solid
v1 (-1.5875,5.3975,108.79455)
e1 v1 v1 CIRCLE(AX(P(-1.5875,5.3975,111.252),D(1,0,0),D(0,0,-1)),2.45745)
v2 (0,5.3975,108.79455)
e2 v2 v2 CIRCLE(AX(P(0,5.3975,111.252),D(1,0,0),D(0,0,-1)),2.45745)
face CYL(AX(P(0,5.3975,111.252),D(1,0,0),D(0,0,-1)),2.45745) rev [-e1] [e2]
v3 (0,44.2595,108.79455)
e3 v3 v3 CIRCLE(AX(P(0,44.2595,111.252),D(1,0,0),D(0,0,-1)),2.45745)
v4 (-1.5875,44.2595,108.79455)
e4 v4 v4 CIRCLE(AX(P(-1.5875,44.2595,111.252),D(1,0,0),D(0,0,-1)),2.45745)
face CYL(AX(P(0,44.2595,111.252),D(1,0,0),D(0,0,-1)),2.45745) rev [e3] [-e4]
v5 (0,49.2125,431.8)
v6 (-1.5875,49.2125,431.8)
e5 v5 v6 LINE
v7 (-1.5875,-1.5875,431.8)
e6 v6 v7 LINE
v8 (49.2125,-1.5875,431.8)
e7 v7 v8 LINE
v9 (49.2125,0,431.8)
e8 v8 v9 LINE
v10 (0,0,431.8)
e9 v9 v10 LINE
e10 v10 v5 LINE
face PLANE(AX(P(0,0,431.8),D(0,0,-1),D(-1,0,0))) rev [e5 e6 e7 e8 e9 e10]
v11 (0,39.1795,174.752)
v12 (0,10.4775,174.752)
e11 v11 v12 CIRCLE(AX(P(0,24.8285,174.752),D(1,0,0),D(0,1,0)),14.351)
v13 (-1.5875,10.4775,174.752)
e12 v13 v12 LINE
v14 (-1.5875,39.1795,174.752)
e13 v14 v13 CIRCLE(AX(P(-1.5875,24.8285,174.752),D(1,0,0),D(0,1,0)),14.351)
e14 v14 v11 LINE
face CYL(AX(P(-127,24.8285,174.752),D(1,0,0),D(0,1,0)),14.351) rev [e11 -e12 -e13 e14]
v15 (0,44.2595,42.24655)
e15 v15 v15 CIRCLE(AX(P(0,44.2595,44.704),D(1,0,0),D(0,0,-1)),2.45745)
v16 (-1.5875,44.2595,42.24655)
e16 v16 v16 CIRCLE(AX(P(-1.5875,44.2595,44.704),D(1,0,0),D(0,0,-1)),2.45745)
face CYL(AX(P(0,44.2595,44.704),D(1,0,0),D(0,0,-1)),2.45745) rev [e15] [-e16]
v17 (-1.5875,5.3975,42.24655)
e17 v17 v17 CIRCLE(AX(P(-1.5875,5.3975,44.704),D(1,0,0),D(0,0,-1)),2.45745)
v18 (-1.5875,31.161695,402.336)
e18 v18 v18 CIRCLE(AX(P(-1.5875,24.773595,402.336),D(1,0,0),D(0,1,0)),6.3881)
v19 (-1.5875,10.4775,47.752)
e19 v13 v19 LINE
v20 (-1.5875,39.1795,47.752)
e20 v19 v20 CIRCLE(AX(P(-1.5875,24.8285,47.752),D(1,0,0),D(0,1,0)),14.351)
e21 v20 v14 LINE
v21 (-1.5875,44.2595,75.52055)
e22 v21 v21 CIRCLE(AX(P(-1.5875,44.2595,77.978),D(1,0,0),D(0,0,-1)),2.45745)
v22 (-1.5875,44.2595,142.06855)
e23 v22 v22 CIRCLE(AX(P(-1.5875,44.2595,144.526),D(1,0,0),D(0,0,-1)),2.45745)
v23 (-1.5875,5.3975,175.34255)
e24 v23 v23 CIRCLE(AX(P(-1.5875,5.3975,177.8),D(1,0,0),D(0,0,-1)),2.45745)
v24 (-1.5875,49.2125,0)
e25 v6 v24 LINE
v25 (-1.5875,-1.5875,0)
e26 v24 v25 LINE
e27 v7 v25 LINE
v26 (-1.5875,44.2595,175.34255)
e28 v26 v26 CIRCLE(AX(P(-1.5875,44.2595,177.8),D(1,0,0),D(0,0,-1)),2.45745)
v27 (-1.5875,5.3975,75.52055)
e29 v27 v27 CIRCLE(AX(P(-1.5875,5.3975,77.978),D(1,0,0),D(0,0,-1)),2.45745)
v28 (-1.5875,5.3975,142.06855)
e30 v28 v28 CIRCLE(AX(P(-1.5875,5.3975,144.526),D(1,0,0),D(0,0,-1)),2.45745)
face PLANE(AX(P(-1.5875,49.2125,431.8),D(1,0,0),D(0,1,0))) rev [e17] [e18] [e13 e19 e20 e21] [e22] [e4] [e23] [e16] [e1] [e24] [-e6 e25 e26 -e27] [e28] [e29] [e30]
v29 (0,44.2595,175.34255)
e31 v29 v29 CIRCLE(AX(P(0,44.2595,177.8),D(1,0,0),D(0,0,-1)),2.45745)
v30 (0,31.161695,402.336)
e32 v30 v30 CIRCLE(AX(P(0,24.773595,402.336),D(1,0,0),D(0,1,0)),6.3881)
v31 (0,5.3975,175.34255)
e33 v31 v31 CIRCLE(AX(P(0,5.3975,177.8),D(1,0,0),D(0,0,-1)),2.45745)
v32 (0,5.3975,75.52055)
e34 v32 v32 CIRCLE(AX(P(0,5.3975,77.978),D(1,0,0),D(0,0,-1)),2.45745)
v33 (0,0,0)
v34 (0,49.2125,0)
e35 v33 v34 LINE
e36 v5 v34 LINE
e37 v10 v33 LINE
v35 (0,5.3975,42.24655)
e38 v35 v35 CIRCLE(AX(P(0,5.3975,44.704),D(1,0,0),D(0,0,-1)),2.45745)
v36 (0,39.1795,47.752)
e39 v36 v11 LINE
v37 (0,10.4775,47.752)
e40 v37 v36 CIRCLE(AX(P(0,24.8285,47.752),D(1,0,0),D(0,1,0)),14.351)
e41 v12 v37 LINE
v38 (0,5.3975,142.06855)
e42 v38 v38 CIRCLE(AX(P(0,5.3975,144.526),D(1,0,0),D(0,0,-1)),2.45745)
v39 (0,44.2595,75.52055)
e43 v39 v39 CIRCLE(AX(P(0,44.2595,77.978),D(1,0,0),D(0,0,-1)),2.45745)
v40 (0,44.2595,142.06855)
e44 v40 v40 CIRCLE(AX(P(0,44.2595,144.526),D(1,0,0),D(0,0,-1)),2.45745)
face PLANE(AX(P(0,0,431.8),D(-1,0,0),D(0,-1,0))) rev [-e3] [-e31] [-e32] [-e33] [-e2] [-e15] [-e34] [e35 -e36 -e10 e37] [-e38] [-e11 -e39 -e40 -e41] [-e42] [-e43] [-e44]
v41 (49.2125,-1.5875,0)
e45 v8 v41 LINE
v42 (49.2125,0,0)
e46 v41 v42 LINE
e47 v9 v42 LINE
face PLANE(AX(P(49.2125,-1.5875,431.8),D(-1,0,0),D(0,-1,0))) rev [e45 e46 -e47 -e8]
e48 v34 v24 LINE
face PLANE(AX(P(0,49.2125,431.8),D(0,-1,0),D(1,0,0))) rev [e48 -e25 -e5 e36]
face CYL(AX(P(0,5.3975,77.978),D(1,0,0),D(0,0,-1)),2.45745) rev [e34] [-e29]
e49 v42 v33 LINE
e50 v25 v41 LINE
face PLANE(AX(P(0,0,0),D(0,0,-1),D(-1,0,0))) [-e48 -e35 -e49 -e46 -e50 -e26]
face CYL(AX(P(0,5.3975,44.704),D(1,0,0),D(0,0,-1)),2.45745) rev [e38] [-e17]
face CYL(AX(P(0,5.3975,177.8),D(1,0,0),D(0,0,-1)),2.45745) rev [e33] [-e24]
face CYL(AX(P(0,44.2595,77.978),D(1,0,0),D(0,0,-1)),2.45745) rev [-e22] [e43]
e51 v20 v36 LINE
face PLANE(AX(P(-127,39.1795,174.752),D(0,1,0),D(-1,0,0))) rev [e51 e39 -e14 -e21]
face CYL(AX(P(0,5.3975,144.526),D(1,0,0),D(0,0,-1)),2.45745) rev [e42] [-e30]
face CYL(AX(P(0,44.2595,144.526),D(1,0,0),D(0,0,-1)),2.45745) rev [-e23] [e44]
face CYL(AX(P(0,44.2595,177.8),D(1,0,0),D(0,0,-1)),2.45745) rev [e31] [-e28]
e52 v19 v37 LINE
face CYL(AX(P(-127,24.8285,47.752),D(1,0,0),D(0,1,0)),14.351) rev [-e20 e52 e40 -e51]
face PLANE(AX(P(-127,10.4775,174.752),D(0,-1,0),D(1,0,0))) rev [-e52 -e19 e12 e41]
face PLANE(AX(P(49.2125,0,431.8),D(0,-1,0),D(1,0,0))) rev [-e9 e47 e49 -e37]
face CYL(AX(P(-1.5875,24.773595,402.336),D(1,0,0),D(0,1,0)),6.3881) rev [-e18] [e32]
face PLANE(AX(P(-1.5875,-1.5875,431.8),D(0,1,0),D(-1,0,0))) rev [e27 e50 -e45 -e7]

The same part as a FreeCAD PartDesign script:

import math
import FreeCAD as App
import Part
import Sketcher
from FreeCAD import Vector
Q = App.Units.Quantity


def add_polygon(sketch, points):
    """Adds a closed chain of lines whose ends are joined by coincident constraints."""
    first, n = sketch.GeometryCount, len(points)
    for a, b in zip(points, points[1:] + points[:1]):
        sketch.addGeometry(Part.LineSegment(App.Vector(*a, 0), App.Vector(*b, 0)), False)
    for i in range(n):
        sketch.addConstraint(Sketcher.Constraint("Coincident", first + i, 2, first + (i + 1) % n, 1))

doc = App.newDocument("Part")
body = doc.addObject("PartDesign::Body", "Body")

# Sketch on XY plane
sketch1 = body.newObject("Sketcher::SketchObject", "Sketch")
sketch1.AttachmentSupport = (doc.getObject("XY_Plane"), [""])
sketch1.MapMode = "FlatFace"
add_polygon(sketch1, [(0, 0), (0, 49.2), (-1.6, 49.2), (-1.6, -1.6), (49.2, -1.6), (49.2, 0)])  # lines 0-5
sketch1.addConstraint([
    Sketcher.Constraint("Vertical", 0),
    Sketcher.Constraint("Horizontal", 1),
    Sketcher.Constraint("Vertical", 2),
    Sketcher.Constraint("Horizontal", 3),
    Sketcher.Constraint("Vertical", 4),
    Sketcher.Constraint("Horizontal", 5),
    Sketcher.Constraint("Coincident", 5, 2, -1, 1),
    Sketcher.Constraint("Equal", 5, 0),
    Sketcher.Constraint("Equal", 3, 2),
    Sketcher.Constraint("DistanceX", 3, 1, 3, 2, Q("2 in")),
    Sketcher.Constraint("DistanceX", 1, 2, 1, 1, Q("0.0625 in")),
])
pad1 = body.newObject("PartDesign::Pad", "Pad")
pad1.Profile = sketch1
pad1.Length = Q("17 in")

# Sketch on YZ plane
sketch2 = body.newObject("Sketcher::SketchObject", "Sketch001")
sketch2.AttachmentSupport = (doc.getObject("YZ_Plane"), [""])
sketch2.MapMode = "FlatFace"
sketch2.addGeometry([
    Part.LineSegment(Vector(39, 48, 0), Vector(39, 175, 0)),
    Part.ArcOfCircle(Part.Circle(Vector(25, 175, 0), Vector(0, 0, 1), 14), math.radians(0), math.radians(180)),
    Part.LineSegment(Vector(10, 175, 0), Vector(10, 48, 0)),
    Part.ArcOfCircle(Part.Circle(Vector(25, 48, 0), Vector(0, 0, 1), 14), math.radians(180), math.radians(360)),
], False)
sketch2.addConstraint([
    Sketcher.Constraint("Tangent", 0, 2, 1, 1),
    Sketcher.Constraint("Tangent", 1, 2, 2, 1),
    Sketcher.Constraint("Tangent", 2, 2, 3, 1),
    Sketcher.Constraint("Tangent", 3, 2, 0, 1),
    Sketcher.Constraint("Vertical", 0),
    Sketcher.Constraint("Vertical", 2),
    Sketcher.Constraint("DistanceY", 0, 1, 0, 2, Q("5 in")),
    Sketcher.Constraint("Radius", 1, Q("0.565 in")),
    Sketcher.Constraint("DistanceY", -1, 1, 1, 3, Q("6.88 in")),
    Sketcher.Constraint("DistanceX", -1, 1, 1, 3, Q("0.9775 in")),
])
pocket1 = body.newObject("PartDesign::Pocket", "Pocket")
pocket1.Profile = sketch2
pocket1.Length = Q("5 in")

# Sketch on YZ plane
sketch3 = body.newObject("Sketcher::SketchObject", "Sketch002")
sketch3.AttachmentSupport = (doc.getObject("YZ_Plane"), [""])
sketch3.MapMode = "FlatFace"
sketch3.addGeometry(Part.Circle(Vector(25, 402, 0), Vector(0, 0, 1), 6), False)
sketch3.addConstraint([
    Sketcher.Constraint("Diameter", 0, Q("0.503 in")),
    Sketcher.Constraint("DistanceY", -1, 1, 0, 3, Q("15.84 in")),
    Sketcher.Constraint("DistanceX", -1, 1, 0, 3, 24.773595),
])
pocket2 = body.newObject("PartDesign::Pocket", "Pocket001")
pocket2.Profile = sketch3
pocket2.Type = "ThroughAll"

# Sketch on YZ plane
sketch4 = body.newObject("Sketcher::SketchObject", "Sketch003")
sketch4.AttachmentSupport = (doc.getObject("YZ_Plane"), [""])
sketch4.MapMode = "FlatFace"
sketch4.addGeometry([
    Part.Circle(Vector(44.3, 177.8, 0), Vector(0, 0, 1), 2.5),  # 0
    Part.Circle(Vector(44.3, 144.5, 0), Vector(0, 0, 1), 2.5),  # 1
    Part.Circle(Vector(44.3, 111.3, 0), Vector(0, 0, 1), 2.5),  # 2
    Part.Circle(Vector(5.4, 177.8, 0), Vector(0, 0, 1), 2.5),  # 3
    Part.Circle(Vector(5.4, 144.5, 0), Vector(0, 0, 1), 2.5),  # 4
    Part.Circle(Vector(5.4, 111.3, 0), Vector(0, 0, 1), 2.5),  # 5
    Part.Circle(Vector(44.3, 78, 0), Vector(0, 0, 1), 2.5),  # 6
    Part.Circle(Vector(44.3, 44.7, 0), Vector(0, 0, 1), 2.5),  # 7
    Part.Circle(Vector(5.4, 44.7, 0), Vector(0, 0, 1), 2.5),  # 8
    Part.Circle(Vector(5.4, 78, 0), Vector(0, 0, 1), 2.5),  # 9
], False)
sketch4.addConstraint([
    Sketcher.Constraint("Equal", 0, 1),
    Sketcher.Constraint("Equal", 1, 2),
    Sketcher.Constraint("Equal", 2, 3),
    Sketcher.Constraint("Equal", 3, 4),
    Sketcher.Constraint("Equal", 4, 5),
    Sketcher.Constraint("Equal", 5, 6),
    Sketcher.Constraint("Equal", 6, 7),
    Sketcher.Constraint("Equal", 7, 8),
    Sketcher.Constraint("Equal", 8, 9),
    Sketcher.Constraint("Horizontal", 0, 3, 3, 3),
    Sketcher.Constraint("Horizontal", 1, 3, 4, 3),
    Sketcher.Constraint("Horizontal", 2, 3, 5, 3),
    Sketcher.Constraint("Horizontal", 7, 3, 8, 3),
    Sketcher.Constraint("Horizontal", 6, 3, 9, 3),
    Sketcher.Constraint("Vertical", 0, 3, 1, 3),
    Sketcher.Constraint("Vertical", 1, 3, 2, 3),
    Sketcher.Constraint("Vertical", 3, 3, 4, 3),
    Sketcher.Constraint("Vertical", 4, 3, 5, 3),
    Sketcher.Constraint("Vertical", 2, 3, 6, 3),
    Sketcher.Constraint("Vertical", 6, 3, 7, 3),
    Sketcher.Constraint("Vertical", 5, 3, 8, 3),
    Sketcher.Constraint("Vertical", 8, 3, 9, 3),
    Sketcher.Constraint("DistanceY", -1, 1, 0, 3, Q("7 in")),
    Sketcher.Constraint("Diameter", 0, Q("0.1935 in")),
    Sketcher.Constraint("DistanceY", -1, 1, 1, 3, Q("5.69 in")),
    Sketcher.Constraint("DistanceY", -1, 1, 2, 3, Q("4.38 in")),
    Sketcher.Constraint("DistanceY", -1, 1, 6, 3, Q("3.07 in")),
    Sketcher.Constraint("DistanceY", -1, 1, 7, 3, Q("1.76 in")),
    Sketcher.Constraint("DistanceX", 3, 3, 0, 3, Q("1.53 in")),
    Sketcher.Constraint("DistanceX", -1, 1, 0, 3, Q("1.7425 in")),
])
doc.recompute()
hole = body.newObject("PartDesign::Hole", "Hole")
hole.Profile = sketch4
hole.ThreadType = "None"
hole.Diameter = Q("0.1935 in")
hole.DepthType = "ThroughAll"

doc.recompute()
